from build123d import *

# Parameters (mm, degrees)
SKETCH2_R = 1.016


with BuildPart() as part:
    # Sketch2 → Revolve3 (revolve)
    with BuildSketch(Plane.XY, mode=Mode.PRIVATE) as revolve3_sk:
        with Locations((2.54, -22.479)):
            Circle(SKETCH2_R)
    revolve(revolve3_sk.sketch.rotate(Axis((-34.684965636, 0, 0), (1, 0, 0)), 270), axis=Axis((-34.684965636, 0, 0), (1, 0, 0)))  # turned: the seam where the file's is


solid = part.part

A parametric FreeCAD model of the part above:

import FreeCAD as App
import Part
import Sketcher
Q = App.Units.Quantity

doc = App.newDocument("Part")
params = doc.addObject("Spreadsheet::Sheet", "Params")
for row, (alias, value) in enumerate([
    ("sketch1_diameter", "0.08 in"),
    ("revolution_angle", "360 deg"),
], start=1):
    params.set(f"A{row}", alias)
    params.set(f"B{row}", "=" + value)
    params.setAlias(f"B{row}", alias)

body = doc.addObject("PartDesign::Body", "Body")

sketch1 = body.newObject("Sketcher::SketchObject", "Sketch")
sketch1.AttachmentSupport = (doc.getObject("XY_Plane"), [""])
sketch1.MapMode = "FlatFace"
sketch1.addGeometry(Part.Circle(App.Vector(2.5, -22.5, 0), App.Vector(0, 0, 1), 1), False)
sketch1.addConstraint(Sketcher.Constraint("Diameter", 0, Q("0.08 in")))
sketch1.addConstraint(Sketcher.Constraint("DistanceX", -1, 1, 0, 3, Q("0.1 in")))
sketch1.addConstraint(Sketcher.Constraint("DistanceY", 0, 3, -1, 1, Q("0.885 in")))
sketch1.setExpression("Constraints[0]", "Params.sketch1_diameter")
revolution = body.newObject("PartDesign::Revolution", "Revolution")
revolution.Profile = sketch1
revolution.ReferenceAxis = (sketch1, ["H_Axis"])
revolution.setExpression("Angle", "Params.revolution_angle")

doc.recompute()
